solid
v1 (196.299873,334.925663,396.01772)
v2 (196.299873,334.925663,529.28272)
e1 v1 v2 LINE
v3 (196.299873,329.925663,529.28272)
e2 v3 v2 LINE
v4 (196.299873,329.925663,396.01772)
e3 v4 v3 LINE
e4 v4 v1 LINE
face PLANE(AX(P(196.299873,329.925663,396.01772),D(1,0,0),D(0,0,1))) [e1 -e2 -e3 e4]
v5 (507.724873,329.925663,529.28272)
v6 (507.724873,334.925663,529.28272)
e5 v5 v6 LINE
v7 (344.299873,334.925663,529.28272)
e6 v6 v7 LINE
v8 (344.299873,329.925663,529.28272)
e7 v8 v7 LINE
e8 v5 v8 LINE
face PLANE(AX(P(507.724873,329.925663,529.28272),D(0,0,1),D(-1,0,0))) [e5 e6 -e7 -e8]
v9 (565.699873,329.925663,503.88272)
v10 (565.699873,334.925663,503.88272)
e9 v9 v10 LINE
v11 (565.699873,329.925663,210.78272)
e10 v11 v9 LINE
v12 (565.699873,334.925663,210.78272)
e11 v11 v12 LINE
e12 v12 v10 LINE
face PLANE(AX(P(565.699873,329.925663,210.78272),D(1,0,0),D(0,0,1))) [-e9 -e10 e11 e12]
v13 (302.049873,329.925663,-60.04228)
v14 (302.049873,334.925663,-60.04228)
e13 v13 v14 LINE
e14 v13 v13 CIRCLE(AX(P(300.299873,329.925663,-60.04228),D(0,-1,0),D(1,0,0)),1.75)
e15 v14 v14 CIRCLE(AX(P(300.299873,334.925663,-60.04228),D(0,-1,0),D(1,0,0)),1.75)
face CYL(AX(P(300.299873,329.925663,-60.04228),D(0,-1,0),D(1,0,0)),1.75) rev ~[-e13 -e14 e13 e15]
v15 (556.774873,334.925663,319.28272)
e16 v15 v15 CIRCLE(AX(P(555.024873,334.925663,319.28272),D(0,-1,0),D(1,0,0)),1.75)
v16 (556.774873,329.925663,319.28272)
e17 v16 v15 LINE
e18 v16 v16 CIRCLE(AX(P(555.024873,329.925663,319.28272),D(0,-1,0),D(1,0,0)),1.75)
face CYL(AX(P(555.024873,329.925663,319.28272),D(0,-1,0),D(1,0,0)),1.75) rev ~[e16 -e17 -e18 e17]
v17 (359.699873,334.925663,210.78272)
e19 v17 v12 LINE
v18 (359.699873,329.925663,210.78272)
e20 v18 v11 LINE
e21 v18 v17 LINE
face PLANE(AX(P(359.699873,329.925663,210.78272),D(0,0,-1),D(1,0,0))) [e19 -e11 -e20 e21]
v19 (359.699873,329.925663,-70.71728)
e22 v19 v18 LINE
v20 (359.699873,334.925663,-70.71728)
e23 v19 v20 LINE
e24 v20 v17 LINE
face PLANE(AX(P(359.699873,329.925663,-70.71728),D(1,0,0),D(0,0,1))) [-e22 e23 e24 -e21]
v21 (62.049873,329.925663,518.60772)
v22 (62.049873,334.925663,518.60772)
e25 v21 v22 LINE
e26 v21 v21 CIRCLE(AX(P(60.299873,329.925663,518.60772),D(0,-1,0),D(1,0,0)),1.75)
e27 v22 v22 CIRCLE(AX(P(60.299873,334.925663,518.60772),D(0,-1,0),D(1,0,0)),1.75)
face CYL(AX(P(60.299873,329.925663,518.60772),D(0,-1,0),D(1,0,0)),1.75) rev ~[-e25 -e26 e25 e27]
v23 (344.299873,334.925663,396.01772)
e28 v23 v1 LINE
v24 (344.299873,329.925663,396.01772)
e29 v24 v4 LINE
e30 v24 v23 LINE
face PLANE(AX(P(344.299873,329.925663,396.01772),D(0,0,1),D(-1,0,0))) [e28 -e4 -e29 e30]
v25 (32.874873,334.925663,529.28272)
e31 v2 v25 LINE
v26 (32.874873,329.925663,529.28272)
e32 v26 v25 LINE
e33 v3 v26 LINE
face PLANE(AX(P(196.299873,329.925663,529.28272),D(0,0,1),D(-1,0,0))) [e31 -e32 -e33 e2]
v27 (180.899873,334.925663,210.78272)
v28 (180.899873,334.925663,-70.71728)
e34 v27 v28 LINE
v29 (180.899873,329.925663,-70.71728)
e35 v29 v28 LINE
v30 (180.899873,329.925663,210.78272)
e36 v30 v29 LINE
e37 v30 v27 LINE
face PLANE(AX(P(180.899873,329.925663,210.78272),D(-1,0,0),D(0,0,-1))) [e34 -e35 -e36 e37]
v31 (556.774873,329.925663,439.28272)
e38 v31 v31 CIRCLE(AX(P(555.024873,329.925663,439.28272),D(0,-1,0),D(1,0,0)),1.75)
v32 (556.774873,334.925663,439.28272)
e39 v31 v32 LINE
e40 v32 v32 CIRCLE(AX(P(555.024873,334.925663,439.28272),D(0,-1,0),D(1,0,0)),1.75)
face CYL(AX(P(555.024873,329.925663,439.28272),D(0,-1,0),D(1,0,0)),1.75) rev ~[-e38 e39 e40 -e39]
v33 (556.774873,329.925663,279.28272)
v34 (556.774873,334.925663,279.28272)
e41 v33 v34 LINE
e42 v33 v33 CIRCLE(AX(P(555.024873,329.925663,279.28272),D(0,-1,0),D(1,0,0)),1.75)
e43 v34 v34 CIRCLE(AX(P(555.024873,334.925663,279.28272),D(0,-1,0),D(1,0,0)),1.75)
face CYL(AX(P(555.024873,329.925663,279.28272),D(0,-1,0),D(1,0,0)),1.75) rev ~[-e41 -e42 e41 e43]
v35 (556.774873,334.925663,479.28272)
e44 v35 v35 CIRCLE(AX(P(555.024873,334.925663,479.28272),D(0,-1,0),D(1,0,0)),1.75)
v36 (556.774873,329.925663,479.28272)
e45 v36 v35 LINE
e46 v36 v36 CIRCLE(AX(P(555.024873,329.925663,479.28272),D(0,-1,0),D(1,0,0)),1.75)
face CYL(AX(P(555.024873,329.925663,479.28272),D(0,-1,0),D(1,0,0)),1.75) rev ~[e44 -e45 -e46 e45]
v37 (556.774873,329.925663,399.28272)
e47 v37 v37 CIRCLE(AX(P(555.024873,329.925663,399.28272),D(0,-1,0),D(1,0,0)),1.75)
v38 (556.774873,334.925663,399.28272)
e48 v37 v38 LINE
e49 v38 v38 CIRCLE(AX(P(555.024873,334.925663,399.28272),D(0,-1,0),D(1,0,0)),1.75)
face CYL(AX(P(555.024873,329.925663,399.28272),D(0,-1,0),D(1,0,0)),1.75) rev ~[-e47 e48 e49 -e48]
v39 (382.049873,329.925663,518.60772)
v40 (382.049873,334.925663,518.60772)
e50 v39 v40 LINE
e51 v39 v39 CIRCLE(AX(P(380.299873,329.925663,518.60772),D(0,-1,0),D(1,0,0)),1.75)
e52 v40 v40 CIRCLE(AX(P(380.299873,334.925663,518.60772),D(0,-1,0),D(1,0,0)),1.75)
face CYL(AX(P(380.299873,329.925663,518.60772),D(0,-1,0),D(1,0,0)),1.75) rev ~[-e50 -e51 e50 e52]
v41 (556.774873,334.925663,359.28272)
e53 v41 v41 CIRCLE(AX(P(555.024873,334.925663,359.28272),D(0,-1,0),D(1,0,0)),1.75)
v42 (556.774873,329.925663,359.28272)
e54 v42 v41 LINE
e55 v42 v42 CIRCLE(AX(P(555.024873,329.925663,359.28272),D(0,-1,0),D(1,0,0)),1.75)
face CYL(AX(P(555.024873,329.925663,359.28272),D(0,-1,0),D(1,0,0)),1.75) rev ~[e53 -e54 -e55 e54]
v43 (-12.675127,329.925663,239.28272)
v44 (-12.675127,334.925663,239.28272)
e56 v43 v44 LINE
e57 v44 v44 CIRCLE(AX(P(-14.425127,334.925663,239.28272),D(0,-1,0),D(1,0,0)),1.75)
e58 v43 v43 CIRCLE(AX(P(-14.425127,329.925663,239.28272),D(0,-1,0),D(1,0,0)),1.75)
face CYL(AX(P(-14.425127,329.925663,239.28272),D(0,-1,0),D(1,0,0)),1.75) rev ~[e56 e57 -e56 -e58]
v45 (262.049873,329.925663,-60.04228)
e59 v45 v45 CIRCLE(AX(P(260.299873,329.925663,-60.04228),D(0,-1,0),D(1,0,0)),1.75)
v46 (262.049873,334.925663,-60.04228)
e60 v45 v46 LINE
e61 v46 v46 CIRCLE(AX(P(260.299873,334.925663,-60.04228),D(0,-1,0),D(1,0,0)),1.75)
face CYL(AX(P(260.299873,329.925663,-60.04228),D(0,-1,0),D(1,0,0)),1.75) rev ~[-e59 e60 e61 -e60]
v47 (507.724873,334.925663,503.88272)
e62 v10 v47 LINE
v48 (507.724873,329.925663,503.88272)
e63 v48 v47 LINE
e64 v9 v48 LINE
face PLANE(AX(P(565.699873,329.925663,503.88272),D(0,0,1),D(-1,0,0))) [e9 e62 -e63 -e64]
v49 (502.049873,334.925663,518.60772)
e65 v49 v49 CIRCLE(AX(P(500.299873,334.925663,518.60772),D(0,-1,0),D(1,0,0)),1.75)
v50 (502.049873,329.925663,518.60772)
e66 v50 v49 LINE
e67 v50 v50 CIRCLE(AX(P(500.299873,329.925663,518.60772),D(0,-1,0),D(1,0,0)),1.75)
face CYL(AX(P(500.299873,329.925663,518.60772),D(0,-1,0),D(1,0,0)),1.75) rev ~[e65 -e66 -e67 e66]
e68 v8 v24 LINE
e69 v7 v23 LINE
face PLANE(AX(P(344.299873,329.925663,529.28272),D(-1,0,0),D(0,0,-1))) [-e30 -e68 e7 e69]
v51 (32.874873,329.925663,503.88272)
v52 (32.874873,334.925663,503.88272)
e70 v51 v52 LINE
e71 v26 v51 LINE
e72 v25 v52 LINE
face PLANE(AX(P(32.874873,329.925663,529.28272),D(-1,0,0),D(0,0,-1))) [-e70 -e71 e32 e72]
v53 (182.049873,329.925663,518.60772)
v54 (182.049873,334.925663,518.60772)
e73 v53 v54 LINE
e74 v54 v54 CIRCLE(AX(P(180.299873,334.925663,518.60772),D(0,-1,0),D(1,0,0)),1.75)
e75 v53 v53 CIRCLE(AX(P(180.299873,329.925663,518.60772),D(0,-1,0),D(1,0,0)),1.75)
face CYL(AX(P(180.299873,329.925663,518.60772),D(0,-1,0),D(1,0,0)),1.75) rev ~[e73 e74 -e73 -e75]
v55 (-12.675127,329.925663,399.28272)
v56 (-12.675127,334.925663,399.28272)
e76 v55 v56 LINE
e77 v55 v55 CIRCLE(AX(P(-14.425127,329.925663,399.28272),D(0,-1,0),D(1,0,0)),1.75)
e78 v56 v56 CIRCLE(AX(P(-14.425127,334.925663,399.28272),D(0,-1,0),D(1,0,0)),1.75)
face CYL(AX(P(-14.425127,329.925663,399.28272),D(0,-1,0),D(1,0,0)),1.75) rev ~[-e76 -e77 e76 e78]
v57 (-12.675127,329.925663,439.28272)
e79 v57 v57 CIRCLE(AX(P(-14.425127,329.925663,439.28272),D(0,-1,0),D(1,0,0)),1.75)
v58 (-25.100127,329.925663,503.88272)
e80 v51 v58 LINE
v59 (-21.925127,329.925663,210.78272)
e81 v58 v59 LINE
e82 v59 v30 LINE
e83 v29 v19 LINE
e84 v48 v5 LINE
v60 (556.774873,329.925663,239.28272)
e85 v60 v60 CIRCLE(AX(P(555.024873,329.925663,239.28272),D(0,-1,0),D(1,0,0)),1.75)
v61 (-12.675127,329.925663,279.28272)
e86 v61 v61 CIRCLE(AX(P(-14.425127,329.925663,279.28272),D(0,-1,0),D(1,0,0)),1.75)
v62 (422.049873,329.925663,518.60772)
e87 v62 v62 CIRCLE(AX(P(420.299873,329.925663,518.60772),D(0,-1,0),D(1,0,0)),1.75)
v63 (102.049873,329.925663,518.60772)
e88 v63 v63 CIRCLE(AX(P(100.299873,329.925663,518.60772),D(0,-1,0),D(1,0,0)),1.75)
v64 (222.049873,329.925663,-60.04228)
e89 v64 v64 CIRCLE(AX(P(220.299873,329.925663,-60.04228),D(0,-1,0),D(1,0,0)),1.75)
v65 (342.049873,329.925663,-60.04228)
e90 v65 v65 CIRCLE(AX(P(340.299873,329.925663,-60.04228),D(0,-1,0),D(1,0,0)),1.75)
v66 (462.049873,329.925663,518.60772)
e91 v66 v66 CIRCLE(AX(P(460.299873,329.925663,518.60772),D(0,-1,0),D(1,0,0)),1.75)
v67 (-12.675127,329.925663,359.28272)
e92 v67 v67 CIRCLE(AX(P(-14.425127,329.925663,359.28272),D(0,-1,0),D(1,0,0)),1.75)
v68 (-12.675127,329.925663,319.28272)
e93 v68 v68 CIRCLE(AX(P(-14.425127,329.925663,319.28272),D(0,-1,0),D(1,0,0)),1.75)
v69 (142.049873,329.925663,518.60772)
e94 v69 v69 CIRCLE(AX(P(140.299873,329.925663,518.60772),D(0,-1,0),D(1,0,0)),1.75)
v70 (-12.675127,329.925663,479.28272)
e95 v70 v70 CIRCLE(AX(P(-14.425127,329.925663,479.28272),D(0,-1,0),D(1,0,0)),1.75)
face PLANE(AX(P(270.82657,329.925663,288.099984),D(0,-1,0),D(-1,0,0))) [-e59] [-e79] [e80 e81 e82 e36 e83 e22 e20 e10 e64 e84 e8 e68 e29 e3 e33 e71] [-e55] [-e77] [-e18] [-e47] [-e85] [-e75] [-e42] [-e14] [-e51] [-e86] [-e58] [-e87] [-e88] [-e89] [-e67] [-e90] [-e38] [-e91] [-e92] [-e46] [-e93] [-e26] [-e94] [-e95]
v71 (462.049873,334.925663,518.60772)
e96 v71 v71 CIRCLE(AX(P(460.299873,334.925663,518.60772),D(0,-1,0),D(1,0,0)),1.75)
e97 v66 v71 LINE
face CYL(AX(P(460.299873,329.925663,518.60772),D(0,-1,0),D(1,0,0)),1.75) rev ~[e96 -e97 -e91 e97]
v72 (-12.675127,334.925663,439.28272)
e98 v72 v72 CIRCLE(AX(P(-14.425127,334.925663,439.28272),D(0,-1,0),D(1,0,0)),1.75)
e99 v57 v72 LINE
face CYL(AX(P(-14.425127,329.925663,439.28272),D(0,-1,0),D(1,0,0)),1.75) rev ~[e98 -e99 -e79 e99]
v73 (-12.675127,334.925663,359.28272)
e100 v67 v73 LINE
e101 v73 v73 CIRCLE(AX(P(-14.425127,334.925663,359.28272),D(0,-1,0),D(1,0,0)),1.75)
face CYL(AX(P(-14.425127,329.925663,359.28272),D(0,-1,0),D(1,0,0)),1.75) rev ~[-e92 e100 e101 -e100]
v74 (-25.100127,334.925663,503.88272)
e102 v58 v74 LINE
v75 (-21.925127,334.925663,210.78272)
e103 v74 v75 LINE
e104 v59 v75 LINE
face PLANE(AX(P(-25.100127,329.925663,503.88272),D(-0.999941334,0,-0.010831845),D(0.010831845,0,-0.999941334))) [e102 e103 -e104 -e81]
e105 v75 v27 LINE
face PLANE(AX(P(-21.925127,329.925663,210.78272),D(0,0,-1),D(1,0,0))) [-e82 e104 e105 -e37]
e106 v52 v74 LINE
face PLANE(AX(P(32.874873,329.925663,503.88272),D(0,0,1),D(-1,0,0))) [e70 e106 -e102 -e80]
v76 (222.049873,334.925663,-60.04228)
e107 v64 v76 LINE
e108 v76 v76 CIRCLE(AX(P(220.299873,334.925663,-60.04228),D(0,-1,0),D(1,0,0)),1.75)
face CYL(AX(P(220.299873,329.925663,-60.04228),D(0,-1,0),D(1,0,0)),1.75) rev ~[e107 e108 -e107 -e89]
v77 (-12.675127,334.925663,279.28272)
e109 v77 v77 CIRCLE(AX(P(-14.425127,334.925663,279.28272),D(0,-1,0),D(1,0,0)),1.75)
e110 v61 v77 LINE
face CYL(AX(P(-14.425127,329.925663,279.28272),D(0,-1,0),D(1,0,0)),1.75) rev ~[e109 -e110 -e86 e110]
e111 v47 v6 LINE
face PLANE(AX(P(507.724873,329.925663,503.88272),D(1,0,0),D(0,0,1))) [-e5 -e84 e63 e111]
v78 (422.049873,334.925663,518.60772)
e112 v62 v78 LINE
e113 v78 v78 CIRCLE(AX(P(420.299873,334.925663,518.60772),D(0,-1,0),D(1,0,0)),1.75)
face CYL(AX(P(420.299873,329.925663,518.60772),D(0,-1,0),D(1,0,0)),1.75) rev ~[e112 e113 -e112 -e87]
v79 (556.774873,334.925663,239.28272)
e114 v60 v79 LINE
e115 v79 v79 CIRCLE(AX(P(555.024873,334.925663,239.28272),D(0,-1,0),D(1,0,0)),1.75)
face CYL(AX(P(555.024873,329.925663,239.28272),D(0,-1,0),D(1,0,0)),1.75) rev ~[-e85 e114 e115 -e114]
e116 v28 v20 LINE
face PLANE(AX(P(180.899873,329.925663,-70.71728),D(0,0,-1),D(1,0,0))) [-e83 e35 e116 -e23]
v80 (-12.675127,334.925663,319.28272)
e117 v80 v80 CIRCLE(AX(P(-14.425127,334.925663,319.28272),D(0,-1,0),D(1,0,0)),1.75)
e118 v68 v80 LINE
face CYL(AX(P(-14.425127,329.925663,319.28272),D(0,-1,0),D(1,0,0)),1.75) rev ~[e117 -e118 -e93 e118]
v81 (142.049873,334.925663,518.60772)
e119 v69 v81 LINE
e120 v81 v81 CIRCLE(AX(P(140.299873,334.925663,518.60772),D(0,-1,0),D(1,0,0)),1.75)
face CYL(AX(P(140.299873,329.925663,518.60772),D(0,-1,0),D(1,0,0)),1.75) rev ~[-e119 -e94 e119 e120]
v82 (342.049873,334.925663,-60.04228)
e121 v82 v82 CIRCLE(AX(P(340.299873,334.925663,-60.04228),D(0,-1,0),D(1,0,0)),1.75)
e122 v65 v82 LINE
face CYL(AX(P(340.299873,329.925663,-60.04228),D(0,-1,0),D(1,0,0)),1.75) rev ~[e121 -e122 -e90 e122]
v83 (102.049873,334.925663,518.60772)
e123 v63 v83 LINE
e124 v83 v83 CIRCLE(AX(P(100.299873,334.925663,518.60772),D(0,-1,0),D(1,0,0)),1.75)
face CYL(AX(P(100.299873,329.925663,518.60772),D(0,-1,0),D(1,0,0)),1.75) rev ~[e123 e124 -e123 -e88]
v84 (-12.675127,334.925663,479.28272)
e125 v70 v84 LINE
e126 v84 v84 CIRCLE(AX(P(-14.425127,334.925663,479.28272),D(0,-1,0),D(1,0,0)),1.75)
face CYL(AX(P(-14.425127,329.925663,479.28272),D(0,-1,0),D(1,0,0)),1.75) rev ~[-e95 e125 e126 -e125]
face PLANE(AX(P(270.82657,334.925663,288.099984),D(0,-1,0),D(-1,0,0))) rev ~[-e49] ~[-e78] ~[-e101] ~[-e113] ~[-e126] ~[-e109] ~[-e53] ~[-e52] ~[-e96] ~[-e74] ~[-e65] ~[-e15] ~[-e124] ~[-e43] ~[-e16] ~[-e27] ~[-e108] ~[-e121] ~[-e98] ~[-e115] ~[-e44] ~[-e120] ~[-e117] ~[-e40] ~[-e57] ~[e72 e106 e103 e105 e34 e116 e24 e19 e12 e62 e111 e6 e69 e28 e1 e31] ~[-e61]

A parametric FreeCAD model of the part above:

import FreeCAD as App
import Part
import Sketcher
from FreeCAD import Vector


def add_polygon(sketch, points):
    """Adds a closed chain of lines whose ends are joined by coincident constraints."""
    first, n = sketch.GeometryCount, len(points)
    for a, b in zip(points, points[1:] + points[:1]):
        sketch.addGeometry(Part.LineSegment(App.Vector(*a, 0), App.Vector(*b, 0)), False)
    for i in range(n):
        sketch.addConstraint(Sketcher.Constraint("Coincident", first + i, 2, first + (i + 1) % n, 1))

doc = App.newDocument("Part")
body = doc.addObject("PartDesign::Body", "Body")

sketch1 = body.newObject("Sketcher::SketchObject", "Sketch")
sketch1.AttachmentSupport = (doc.getObject("XZ_Plane"), [""])
sketch1.MapMode = "FlatFace"
sketch1.AttachmentOffset = App.Placement(Vector(0, 0, -329.925663), App.Rotation())
add_polygon(sketch1, [(181, -71), (181, 211), (-22, 211), (-25, 504), (33, 504), (33, 529), (196, 529), (196, 396), (344, 396), (344, 529), (508, 529), (508, 504), (566, 504), (566, 211), (360, 211), (360, -71)])
sketch1.addConstraint([
    Sketcher.Constraint("Vertical", 0),
    Sketcher.Constraint("Horizontal", 1),
    Sketcher.Constraint("Horizontal", 3),
    Sketcher.Constraint("Vertical", 4),
    Sketcher.Constraint("Horizontal", 5),
    Sketcher.Constraint("Vertical", 6),
    Sketcher.Constraint("Horizontal", 7),
    Sketcher.Constraint("Vertical", 8),
    Sketcher.Constraint("Horizontal", 9),
    Sketcher.Constraint("Vertical", 10),
    Sketcher.Constraint("Horizontal", 11),
    Sketcher.Constraint("Vertical", 12),
    Sketcher.Constraint("Horizontal", 13),
    Sketcher.Constraint("Vertical", 14),
    Sketcher.Constraint("Horizontal", 15),
    Sketcher.Constraint("Horizontal", 5, 2, 8, 2),
    Sketcher.Constraint("Horizontal", 3, 2, 10, 2),
    Sketcher.Constraint("Horizontal", 1, 2, 12, 2),
    Sketcher.Constraint("Equal", 5, 9),
    Sketcher.Constraint("Equal", 3, 11),
    Sketcher.Constraint("DistanceX", 7, 1, 7, 2, 148.0),
    Sketcher.Constraint("DistanceX", 13, 2, 13, 1, 206.0),
    Sketcher.Constraint("DistanceX", 15, 2, 15, 1, 178.8),
    Sketcher.Constraint("DistanceY", 0, 1, 0, 2, 281.5),
    Sketcher.Constraint("DistanceY", 4, 1, 4, 2, 25.4),
    Sketcher.Constraint("DistanceY", 12, 2, 12, 1, 293.1),
    Sketcher.Constraint("DistanceX", 2, 2, 0, 2, 206.0),
    Sketcher.Constraint("DistanceX", 1, 2, 3, 2, 54.8),
    Sketcher.Constraint("DistanceX", 1, 2, 1, 1, 202.825),
    Sketcher.Constraint("DistanceY", 6, 2, 6, 1, 133.265),
    Sketcher.Constraint("DistanceY", -1, 1, 0, 2, 210.78272),
    Sketcher.Constraint("DistanceX", -1, 1, 0, 2, 180.899873),
])
pad1 = body.newObject("PartDesign::Pad", "Pad")
pad1.Profile = sketch1
pad1.Length = 5
pad1.Reversed = True

sketch2 = body.newObject("Sketcher::SketchObject", "Sketch001")
sketch2.AttachmentSupport = (doc.getObject("XZ_Plane"), [""])
sketch2.MapMode = "FlatFace"
sketch2.AttachmentOffset = App.Placement(Vector(0, 0, -329.925663), App.Rotation())
sketch2.addGeometry([
    Part.Circle(Vector(60.3, 518.6, 0), Vector(0, 0, 1), 1.8),
    Part.Circle(Vector(380.3, 518.6, 0), Vector(0, 0, 1), 1.8),
    Part.Circle(Vector(220.3, -60, 0), Vector(0, 0, 1), 1.8),
    Part.Circle(Vector(100.3, 518.6, 0), Vector(0, 0, 1), 1.8),
    Part.Circle(Vector(420.3, 518.6, 0), Vector(0, 0, 1), 1.8),
    Part.Circle(Vector(260.3, -60, 0), Vector(0, 0, 1), 1.8),
    Part.Circle(Vector(140.3, 518.6, 0), Vector(0, 0, 1), 1.8),
    Part.Circle(Vector(460.3, 518.6, 0), Vector(0, 0, 1), 1.8),
    Part.Circle(Vector(300.3, -60, 0), Vector(0, 0, 1), 1.8),
    Part.Circle(Vector(180.3, 518.6, 0), Vector(0, 0, 1), 1.8),
    Part.Circle(Vector(500.3, 518.6, 0), Vector(0, 0, 1), 1.8),
    Part.Circle(Vector(340.3, -60, 0), Vector(0, 0, 1), 1.8),
    Part.Circle(Vector(-14.4, 239.3, 0), Vector(0, 0, 1), 1.8),
    Part.Circle(Vector(555, 239.3, 0), Vector(0, 0, 1), 1.8),
    Part.Circle(Vector(-14.4, 279.3, 0), Vector(0, 0, 1), 1.8),
    Part.Circle(Vector(555, 279.3, 0), Vector(0, 0, 1), 1.8),
    Part.Circle(Vector(-14.4, 319.3, 0), Vector(0, 0, 1), 1.8),
    Part.Circle(Vector(555, 319.3, 0), Vector(0, 0, 1), 1.8),
    Part.Circle(Vector(-14.4, 359.3, 0), Vector(0, 0, 1), 1.8),
    Part.Circle(Vector(555, 359.3, 0), Vector(0, 0, 1), 1.8),
    Part.Circle(Vector(-14.4, 399.3, 0), Vector(0, 0, 1), 1.8),
    Part.Circle(Vector(555, 399.3, 0), Vector(0, 0, 1), 1.8),
    Part.Circle(Vector(-14.4, 439.3, 0), Vector(0, 0, 1), 1.8),
    Part.Circle(Vector(555, 439.3, 0), Vector(0, 0, 1), 1.8),
    Part.Circle(Vector(-14.4, 479.3, 0), Vector(0, 0, 1), 1.8),
    Part.Circle(Vector(555, 479.3, 0), Vector(0, 0, 1), 1.8),
], False)
sketch2.addConstraint([
    Sketcher.Constraint("Equal", 0, 1),
    Sketcher.Constraint("Equal", 1, 2),
    Sketcher.Constraint("Equal", 2, 3),
    Sketcher.Constraint("Equal", 3, 4),
    Sketcher.Constraint("Equal", 4, 5),
    Sketcher.Constraint("Equal", 5, 6),
    Sketcher.Constraint("Equal", 6, 7),
    Sketcher.Constraint("Equal", 7, 8),
    Sketcher.Constraint("Equal", 8, 9),
    Sketcher.Constraint("Equal", 9, 10),
    Sketcher.Constraint("Equal", 10, 11),
    Sketcher.Constraint("Equal", 11, 12),
    Sketcher.Constraint("Equal", 12, 13),
    Sketcher.Constraint("Equal", 13, 14),
    Sketcher.Constraint("Equal", 14, 15),
    Sketcher.Constraint("Equal", 15, 16),
    Sketcher.Constraint("Equal", 16, 17),
    Sketcher.Constraint("Equal", 17, 18),
    Sketcher.Constraint("Equal", 18, 19),
    Sketcher.Constraint("Equal", 19, 20),
    Sketcher.Constraint("Equal", 20, 21),
    Sketcher.Constraint("Equal", 21, 22),
    Sketcher.Constraint("Equal", 22, 23),
    Sketcher.Constraint("Equal", 23, 24),
    Sketcher.Constraint("Equal", 24, 25),
    Sketcher.Constraint("Horizontal", 0, 3, 1, 3),
    Sketcher.Constraint("Horizontal", 1, 3, 3, 3),
    Sketcher.Constraint("Horizontal", 3, 3, 4, 3),
    Sketcher.Constraint("Horizontal", 2, 3, 5, 3),
    Sketcher.Constraint("Horizontal", 4, 3, 6, 3),
    Sketcher.Constraint("Horizontal", 6, 3, 7, 3),
    Sketcher.Constraint("Horizontal", 5, 3, 8, 3),
    Sketcher.Constraint("Horizontal", 7, 3, 9, 3),
    Sketcher.Constraint("Horizontal", 9, 3, 10, 3),
    Sketcher.Constraint("Horizontal", 8, 3, 11, 3),
    Sketcher.Constraint("Horizontal", 12, 3, 13, 3),
    Sketcher.Constraint("Horizontal", 14, 3, 15, 3),
    Sketcher.Constraint("Horizontal", 16, 3, 17, 3),
    Sketcher.Constraint("Horizontal", 18, 3, 19, 3),
    Sketcher.Constraint("Horizontal", 20, 3, 21, 3),
    Sketcher.Constraint("Horizontal", 22, 3, 23, 3),
    Sketcher.Constraint("Horizontal", 24, 3, 25, 3),
    Sketcher.Constraint("Vertical", 12, 3, 14, 3),
    Sketcher.Constraint("Vertical", 13, 3, 15, 3),
    Sketcher.Constraint("Vertical", 14, 3, 16, 3),
    Sketcher.Constraint("Vertical", 15, 3, 17, 3),
    Sketcher.Constraint("Vertical", 16, 3, 18, 3),
    Sketcher.Constraint("Vertical", 17, 3, 19, 3),
    Sketcher.Constraint("Vertical", 18, 3, 20, 3),
    Sketcher.Constraint("Vertical", 19, 3, 21, 3),
    Sketcher.Constraint("Vertical", 20, 3, 22, 3),
    Sketcher.Constraint("Vertical", 21, 3, 23, 3),
    Sketcher.Constraint("Vertical", 22, 3, 24, 3),
    Sketcher.Constraint("Vertical", 23, 3, 25, 3),
    Sketcher.Constraint("Diameter", 0, 3.5),
    Sketcher.Constraint("DistanceX", 0, 3, 1, 3, 320.0),
    Sketcher.Constraint("DistanceX", 0, 3, 2, 3, 160.0),
    Sketcher.Constraint("DistanceX", 0, 3, 3, 3, 40.0),
    Sketcher.Constraint("DistanceX", 1, 3, 4, 3, 40.0),
    Sketcher.Constraint("DistanceX", 2, 3, 5, 3, 40.0),
    Sketcher.Constraint("DistanceX", 3, 3, 6, 3, 40.0),
    Sketcher.Constraint("DistanceX", 4, 3, 7, 3, 40.0),
    Sketcher.Constraint("DistanceX", 5, 3, 8, 3, 40.0),
    Sketcher.Constraint("DistanceX", 6, 3, 9, 3, 40.0),
    Sketcher.Constraint("DistanceX", 7, 3, 10, 3, 40.0),
    Sketcher.Constraint("DistanceX", 8, 3, 11, 3, 40.0),
    Sketcher.Constraint("DistanceY", 12, 3, 14, 3, 40.0),
    Sketcher.Constraint("DistanceY", 14, 3, 16, 3, 40.0),
    Sketcher.Constraint("DistanceY", 16, 3, 18, 3, 40.0),
    Sketcher.Constraint("DistanceY", 18, 3, 20, 3, 40.0),
    Sketcher.Constraint("DistanceY", 20, 3, 22, 3, 40.0),
    Sketcher.Constraint("DistanceY", 22, 3, 24, 3, 40.0),
    Sketcher.Constraint("DistanceY", 2, 3, 0, 3, 578.65),
    Sketcher.Constraint("DistanceX", 12, 3, 0, 3, 74.725),
    Sketcher.Constraint("DistanceY", 12, 3, 0, 3, 279.325),
    Sketcher.Constraint("DistanceX", 10, 3, 13, 3, 54.725),
    Sketcher.Constraint("DistanceY", -1, 1, 0, 3, 518.60772),
    Sketcher.Constraint("DistanceX", -1, 1, 0, 3, 60.299873),
])
pocket1 = body.newObject("PartDesign::Pocket", "Pocket")
pocket1.Profile = sketch2
pocket1.Type = "ThroughAll"

doc.recompute()
